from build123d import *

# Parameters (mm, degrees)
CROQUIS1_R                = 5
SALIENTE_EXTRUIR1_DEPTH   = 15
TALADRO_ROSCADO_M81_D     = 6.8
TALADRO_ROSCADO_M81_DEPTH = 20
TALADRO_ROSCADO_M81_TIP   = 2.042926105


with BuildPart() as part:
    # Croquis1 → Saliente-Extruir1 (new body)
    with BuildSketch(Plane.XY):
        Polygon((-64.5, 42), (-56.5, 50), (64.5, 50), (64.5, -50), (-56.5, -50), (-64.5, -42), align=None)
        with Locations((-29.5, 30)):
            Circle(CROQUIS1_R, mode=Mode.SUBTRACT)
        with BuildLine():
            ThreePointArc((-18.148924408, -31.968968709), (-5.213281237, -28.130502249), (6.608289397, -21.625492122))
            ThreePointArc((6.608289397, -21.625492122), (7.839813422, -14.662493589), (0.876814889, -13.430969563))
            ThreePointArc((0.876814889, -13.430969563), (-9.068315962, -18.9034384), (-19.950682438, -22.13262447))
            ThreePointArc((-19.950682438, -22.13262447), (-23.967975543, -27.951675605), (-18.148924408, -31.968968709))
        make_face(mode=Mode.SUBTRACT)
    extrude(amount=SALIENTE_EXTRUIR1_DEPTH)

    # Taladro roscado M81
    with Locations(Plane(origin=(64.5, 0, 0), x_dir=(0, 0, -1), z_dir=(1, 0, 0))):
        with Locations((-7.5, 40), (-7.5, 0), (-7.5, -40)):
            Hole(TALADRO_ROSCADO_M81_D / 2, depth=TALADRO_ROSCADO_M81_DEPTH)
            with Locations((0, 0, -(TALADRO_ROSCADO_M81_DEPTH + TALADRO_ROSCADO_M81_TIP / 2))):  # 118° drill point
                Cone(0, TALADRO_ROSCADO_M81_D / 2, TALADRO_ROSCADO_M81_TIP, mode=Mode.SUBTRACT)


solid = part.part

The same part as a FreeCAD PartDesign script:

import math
import FreeCAD as App
import Part
import Sketcher

V = App.Vector
Q = App.Units.Quantity


def add_polygon(sketch, points):
    """Adds a closed chain of lines whose ends are joined by coincident constraints."""
    first, n = sketch.GeometryCount, len(points)
    for a, b in zip(points, points[1:] + points[:1]):
        sketch.addGeometry(Part.LineSegment(App.Vector(*a, 0), App.Vector(*b, 0)), False)
    for i in range(n):
        sketch.addConstraint(Sketcher.Constraint("Coincident", first + i, 2, first + (i + 1) % n, 1))

doc = App.newDocument("Part")
params = doc.addObject("Spreadsheet::Sheet", "Params")
for row, (alias, value) in enumerate([
    ("sketch1_diameter", "10 mm"),
    ("sketch1_radius", "53 mm"),
    ("sketch1_width", "121 mm"),
    ("sketch1_height", "84 mm"),
    ("sketch1_height2", "100 mm"),
    ("pad1_length", "15 mm"),
    ("sketch2_diameter", "6.8 mm"),
    ("hole_diameter", "6.8 mm"),
    ("hole_depth", "20 mm"),
], start=1):
    params.set(f"A{row}", alias)
    params.set(f"B{row}", "=" + value)
    params.setAlias(f"B{row}", alias)

body = doc.addObject("PartDesign::Body", "Body")

# Sketch on XY plane
sketch1 = body.newObject("Sketcher::SketchObject", "Sketch")
sketch1.AttachmentSupport = (doc.getObject("XY_Plane"), [""])
sketch1.MapMode = "FlatFace"
add_polygon(sketch1, [(-56, 50), (-64, 42), (-64, -42), (-56, -50), (64, -50), (64, 50)])  # lines 0-5
sketch1.addGeometry(Part.ArcOfCircle(Part.Circle(V(-19, -27, 0), V(0, 0, 1), 5), math.radians(100), math.radians(280)), False)  # 6
sketch1.addGeometry(Part.ArcOfCircle(Part.Circle(V(-30, 30, 0), V(0, 0, 1), 53), math.radians(-80), math.radians(-55)), False)  # 7
sketch1.addGeometry(Part.ArcOfCircle(Part.Circle(V(4, -18, 0), V(0, 0, 1), 5), math.radians(-55), math.radians(125)), False)  # 8
sketch1.addGeometry(Part.ArcOfCircle(Part.Circle(V(-29, 30, 0), V(0, 0, 1), 63), math.radians(-80), math.radians(-55)), False)  # 9
sketch1.addGeometry(Part.Circle(V(-30, 30, 0), V(0, 0, 1), 5), False)  # 10
sketch1.addConstraint(Sketcher.Constraint("Tangent", 6, 1, 7, 1))
sketch1.addConstraint(Sketcher.Constraint("Tangent", 7, 2, 8, 2))
sketch1.addConstraint(Sketcher.Constraint("Tangent", 8, 1, 9, 2))
sketch1.addConstraint(Sketcher.Constraint("Tangent", 9, 1, 6, 2))
sketch1.addConstraint(Sketcher.Constraint("Vertical", 1))
sketch1.addConstraint(Sketcher.Constraint("Horizontal", 3))
sketch1.addConstraint(Sketcher.Constraint("Vertical", 4))
sketch1.addConstraint(Sketcher.Constraint("Horizontal", 5))
sketch1.addConstraint(Sketcher.Constraint("Coincident", 9, 3, 7, 3))
sketch1.addConstraint(Sketcher.Constraint("Coincident", 10, 3, 7, 3))
sketch1.addConstraint(Sketcher.Constraint("Equal", 8, 10))
sketch1.addConstraint(Sketcher.Constraint("Symmetric", 2, 2, 5, 2, -1))
sketch1.addConstraint(Sketcher.Constraint("Perpendicular", 0, 2))
sketch1.addConstraint(Sketcher.Constraint("Equal", 0, 2))
sketch1.addConstraint(Sketcher.Constraint("Diameter", 10, Q("10 mm")))
sketch1.addConstraint(Sketcher.Constraint("Radius", 7, Q("53 mm")))
sketch1.addConstraint(Sketcher.Constraint("DistanceX", 3, 1, 3, 2, Q("121 mm")))
sketch1.addConstraint(Sketcher.Constraint("DistanceY", 1, 2, 1, 1, Q("84 mm")))
sketch1.addConstraint(Sketcher.Constraint("DistanceY", 4, 1, 4, 2, Q("100 mm")))
sketch1.addConstraint(Sketcher.Constraint("DistanceY", -1, 1, 7, 3, Q("30 mm")))
sketch1.addConstraint(Sketcher.Constraint("DistanceX", 0, 2, 7, 3, Q("35 mm")))
sketch1.addConstraint(Sketcher.Constraint("DistanceX", 7, 3, -1, 1, Q("29.5 mm")))
sketch1.addConstraint(Sketcher.Constraint("DistanceY", 9, 1, 7, 2, Q("18.537999 mm")))
sketch1.addConstraint(Sketcher.Constraint("DistanceY", 8, 3, -1, 1, Q("17.528231 mm")))
sketch1.setExpression("Constraints[20]", "Params.sketch1_diameter")
sketch1.setExpression("Constraints[21]", "Params.sketch1_radius")
sketch1.setExpression("Constraints[22]", "Params.sketch1_width")
sketch1.setExpression("Constraints[23]", "Params.sketch1_height")
sketch1.setExpression("Constraints[24]", "Params.sketch1_height2")
pad1 = body.newObject("PartDesign::Pad", "Pad")
pad1.Profile = sketch1
pad1.setExpression("Length", "Params.pad1_length")

# Sketch on YZ plane
sketch2 = body.newObject("Sketcher::SketchObject", "Sketch001")
sketch2.AttachmentSupport = (doc.getObject("YZ_Plane"), [""])
sketch2.MapMode = "FlatFace"
sketch2.AttachmentOffset = App.Placement(V(0, 0, 64.5), App.Rotation())
sketch2.addGeometry(Part.Circle(V(40, 7.5, 0), V(0, 0, 1), 3.4), False)
sketch2.addGeometry(Part.Circle(V(0, 7.5, 0), V(0, 0, 1), 3.4), False)
sketch2.addGeometry(Part.Circle(V(-40, 7.5, 0), V(0, 0, 1), 3.4), False)
sketch2.addConstraint(Sketcher.Constraint("Equal", 0, 1))
sketch2.addConstraint(Sketcher.Constraint("Equal", 1, 2))
sketch2.addConstraint(Sketcher.Constraint("Symmetric", 0, 3, 2, 3, -2))
sketch2.addConstraint(Sketcher.Constraint("PointOnObject", 1, 3, -2))
sketch2.addConstraint(Sketcher.Constraint("Horizontal", 0, 3, 1, 3))
sketch2.addConstraint(Sketcher.Constraint("Diameter", 0, Q("6.8 mm")))
sketch2.addConstraint(Sketcher.Constraint("DistanceX", -1, 1, 0, 3, Q("40 mm")))
sketch2.addConstraint(Sketcher.Constraint("DistanceY", -1, 1, 0, 3, Q("7.5 mm")))
sketch2.setExpression("Constraints[5]", "Params.sketch2_diameter")
doc.recompute()
hole = body.newObject("PartDesign::Hole", "Hole")
hole.Profile = sketch2
hole.ThreadType = "None"
hole.setExpression("Diameter", "Params.hole_diameter")
hole.DepthType = "Dimension"
hole.setExpression("Depth", "Params.hole_depth")
hole.DrillPoint = "Angled"
hole.DrillPointAngle = 118

doc.recompute()
